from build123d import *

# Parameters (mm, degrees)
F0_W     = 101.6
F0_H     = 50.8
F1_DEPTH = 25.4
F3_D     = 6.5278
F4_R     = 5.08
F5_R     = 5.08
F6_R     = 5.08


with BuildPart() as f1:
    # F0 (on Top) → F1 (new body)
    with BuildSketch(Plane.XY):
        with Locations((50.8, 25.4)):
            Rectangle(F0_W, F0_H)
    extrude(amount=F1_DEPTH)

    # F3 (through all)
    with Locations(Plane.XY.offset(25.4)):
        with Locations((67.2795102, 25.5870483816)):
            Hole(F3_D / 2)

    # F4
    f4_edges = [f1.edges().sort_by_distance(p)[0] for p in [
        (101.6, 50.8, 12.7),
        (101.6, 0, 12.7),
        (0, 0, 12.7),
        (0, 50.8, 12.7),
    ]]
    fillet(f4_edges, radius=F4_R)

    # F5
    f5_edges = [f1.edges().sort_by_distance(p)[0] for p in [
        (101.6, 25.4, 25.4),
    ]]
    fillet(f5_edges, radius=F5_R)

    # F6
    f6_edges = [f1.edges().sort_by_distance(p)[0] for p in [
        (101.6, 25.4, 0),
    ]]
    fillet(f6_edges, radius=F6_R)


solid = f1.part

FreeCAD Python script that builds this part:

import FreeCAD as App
import Part
import Sketcher
from FreeCAD import Vector
Q = App.Units.Quantity


def edges_at(feature, points):
    """Names of the edges that pass closest to the given points."""
    edges = feature.Shape.Edges
    near = lambda p: min(range(len(edges)), key=lambda i: edges[i].distToShape(Part.Vertex(*p))[0])
    return sorted({f"Edge{near(p) + 1}" for p in points})


def add_polygon(sketch, points):
    """Adds a closed chain of lines whose ends are joined by coincident constraints."""
    first, n = sketch.GeometryCount, len(points)
    for a, b in zip(points, points[1:] + points[:1]):
        sketch.addGeometry(Part.LineSegment(App.Vector(*a, 0), App.Vector(*b, 0)), False)
    for i in range(n):
        sketch.addConstraint(Sketcher.Constraint("Coincident", first + i, 2, first + (i + 1) % n, 1))

doc = App.newDocument("Part")
body = doc.addObject("PartDesign::Body", "Body")

sketch1 = body.newObject("Sketcher::SketchObject", "Sketch")
sketch1.AttachmentSupport = (doc.getObject("XY_Plane"), [""])
sketch1.MapMode = "FlatFace"
add_polygon(sketch1, [(0, 51), (0, 0), (102, 0), (102, 51)])
sketch1.addConstraint([
    Sketcher.Constraint("Vertical", 0),
    Sketcher.Constraint("Horizontal", 1),
    Sketcher.Constraint("Vertical", 2),
    Sketcher.Constraint("Horizontal", 3),
    Sketcher.Constraint("Coincident", 0, 2, -1, 1),
    Sketcher.Constraint("DistanceX", 1, 1, 1, 2, Q("4 in")),
    Sketcher.Constraint("DistanceY", 0, 2, 0, 1, Q("2 in")),
])
pad1 = body.newObject("PartDesign::Pad", "Pad")
pad1.Profile = sketch1
pad1.Length = Q("1 in")

sketch2 = body.newObject("Sketcher::SketchObject", "Sketch001")
sketch2.AttachmentSupport = (doc.getObject("XY_Plane"), [""])
sketch2.MapMode = "FlatFace"
sketch2.AttachmentOffset = App.Placement(Vector(0, 0, 1 * 25.4), App.Rotation())
sketch2.addGeometry(Part.Circle(Vector(67.3, 25.6, 0), Vector(0, 0, 1), 3.3), False)
sketch2.addConstraint([
    Sketcher.Constraint("Diameter", 0, Q("0.257 in")),
    Sketcher.Constraint("DistanceX", -1, 1, 0, 3, Q("67.27951 mm")),
    Sketcher.Constraint("DistanceY", -1, 1, 0, 3, Q("25.587048 mm")),
])
doc.recompute()
hole = body.newObject("PartDesign::Hole", "Hole")
hole.Profile = sketch2
hole.ThreadType = "None"
hole.Diameter = Q("0.257 in")
hole.DepthType = "ThroughAll"
doc.recompute()

fillet = body.newObject("PartDesign::Fillet", "Fillet")
fillet.Base = (hole, edges_at(hole, [
    (101.6, 50.8, 12.7),
    (101.6, 0, 12.7),
    (0, 0, 12.7),
    (0, 50.8, 12.7),
]))
fillet.Radius = Q("0.2 in")
doc.recompute()

fillet2 = body.newObject("PartDesign::Fillet", "Fillet001")
fillet2.Base = (fillet, edges_at(fillet, [(101.6, 25.4, 25.4)]))
fillet2.Radius = Q("0.2 in")
doc.recompute()

fillet3 = body.newObject("PartDesign::Fillet", "Fillet002")
fillet3.Base = (fillet2, edges_at(fillet2, [(101.6, 25.4, 0)]))
fillet3.Radius = Q("0.2 in")

doc.recompute()
